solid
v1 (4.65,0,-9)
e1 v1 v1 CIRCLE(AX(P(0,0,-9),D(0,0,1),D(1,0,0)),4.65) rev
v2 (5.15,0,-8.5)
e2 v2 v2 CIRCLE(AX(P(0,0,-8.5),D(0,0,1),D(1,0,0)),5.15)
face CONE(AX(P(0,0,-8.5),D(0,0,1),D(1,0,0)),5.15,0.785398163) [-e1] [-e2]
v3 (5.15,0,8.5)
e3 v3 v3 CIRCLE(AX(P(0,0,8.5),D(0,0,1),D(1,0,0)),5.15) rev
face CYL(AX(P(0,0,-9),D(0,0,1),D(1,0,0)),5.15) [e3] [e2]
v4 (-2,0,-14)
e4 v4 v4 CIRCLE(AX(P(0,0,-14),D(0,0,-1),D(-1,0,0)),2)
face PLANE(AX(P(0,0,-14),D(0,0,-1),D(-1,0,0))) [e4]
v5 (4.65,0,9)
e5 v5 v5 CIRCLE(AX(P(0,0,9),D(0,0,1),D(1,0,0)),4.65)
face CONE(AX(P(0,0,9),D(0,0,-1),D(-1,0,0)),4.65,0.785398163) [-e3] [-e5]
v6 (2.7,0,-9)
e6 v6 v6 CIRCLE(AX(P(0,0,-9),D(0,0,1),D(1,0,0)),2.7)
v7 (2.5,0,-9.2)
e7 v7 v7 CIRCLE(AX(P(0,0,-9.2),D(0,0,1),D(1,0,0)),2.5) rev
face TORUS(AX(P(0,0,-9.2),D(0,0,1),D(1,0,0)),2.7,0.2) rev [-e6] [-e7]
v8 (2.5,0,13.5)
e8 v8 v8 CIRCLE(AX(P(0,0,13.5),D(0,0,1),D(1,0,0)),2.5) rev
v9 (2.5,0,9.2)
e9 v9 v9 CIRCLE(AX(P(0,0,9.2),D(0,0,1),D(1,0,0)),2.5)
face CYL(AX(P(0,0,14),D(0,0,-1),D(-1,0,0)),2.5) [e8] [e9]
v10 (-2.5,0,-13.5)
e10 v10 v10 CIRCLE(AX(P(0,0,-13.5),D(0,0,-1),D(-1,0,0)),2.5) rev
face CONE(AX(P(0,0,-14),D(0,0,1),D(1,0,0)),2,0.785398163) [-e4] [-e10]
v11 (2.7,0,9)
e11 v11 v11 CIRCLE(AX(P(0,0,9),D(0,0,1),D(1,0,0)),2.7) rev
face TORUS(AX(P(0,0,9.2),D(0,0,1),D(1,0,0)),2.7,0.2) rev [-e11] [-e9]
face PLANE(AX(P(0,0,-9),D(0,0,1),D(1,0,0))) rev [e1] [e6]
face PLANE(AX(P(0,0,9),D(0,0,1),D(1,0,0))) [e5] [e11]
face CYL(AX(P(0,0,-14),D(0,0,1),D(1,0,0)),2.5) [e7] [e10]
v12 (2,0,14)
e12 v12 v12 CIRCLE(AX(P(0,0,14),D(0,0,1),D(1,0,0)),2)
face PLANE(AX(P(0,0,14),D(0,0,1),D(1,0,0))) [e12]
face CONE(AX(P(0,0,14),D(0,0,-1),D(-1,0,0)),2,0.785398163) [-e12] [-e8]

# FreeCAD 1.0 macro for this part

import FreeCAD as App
import Part
import Sketcher
from FreeCAD import Vector


def edges_at(feature, points):
    """Names of the edges that pass closest to the given points."""
    edges = feature.Shape.Edges
    near = lambda p: min(range(len(edges)), key=lambda i: edges[i].distToShape(Part.Vertex(*p))[0])
    return sorted({f"Edge{near(p) + 1}" for p in points})

doc = App.newDocument("Part")
body = doc.addObject("PartDesign::Body", "Body")

# Sketch on XY plane
sketch1 = body.newObject("Sketcher::SketchObject", "Sketch")
sketch1.AttachmentSupport = (doc.getObject("XY_Plane"), [""])
sketch1.MapMode = "FlatFace"
sketch1.addGeometry(Part.Circle(Vector(0, 0, 0), Vector(0, 0, 1), 5.15), False)
sketch1.addConstraint([
    Sketcher.Constraint("Coincident", 0, 3, -1, 1),
    Sketcher.Constraint("Diameter", 0, 10.3),
])
pad1 = body.newObject("PartDesign::Pad", "Pad")
pad1.Profile = sketch1
pad1.Type = "TwoLengths"
pad1.Length = 9
pad1.Length2 = 9

# Sketch on XY plane
sketch2 = body.newObject("Sketcher::SketchObject", "Sketch001")
sketch2.AttachmentSupport = (doc.getObject("XY_Plane"), [""])
sketch2.MapMode = "FlatFace"
sketch2.AttachmentOffset = App.Placement(Vector(0, 0, 9), App.Rotation())
sketch2.addGeometry(Part.Circle(Vector(0, 0, 0), Vector(0, 0, 1), 2.5), False)
sketch2.addConstraint([
    Sketcher.Constraint("Coincident", 0, 3, -1, 1),
    Sketcher.Constraint("Diameter", 0, 5.0),
])
pad2 = body.newObject("PartDesign::Pad", "Pad001")
pad2.Profile = sketch2
pad2.Length = 5

# Sketch on XY plane
sketch3 = body.newObject("Sketcher::SketchObject", "Sketch002")
sketch3.AttachmentSupport = (doc.getObject("XY_Plane"), [""])
sketch3.MapMode = "FlatFace"
sketch3.AttachmentOffset = App.Placement(Vector(0, 0, -14), App.Rotation())
sketch3.addGeometry(Part.Circle(Vector(0, 0, 0), Vector(0, 0, 1), 2.5), False)
sketch3.addConstraint([
    Sketcher.Constraint("Coincident", 0, 3, -1, 1),
    Sketcher.Constraint("Diameter", 0, 5.0),
])
pad3 = body.newObject("PartDesign::Pad", "Pad002")
pad3.Profile = sketch3
pad3.Length = 5
doc.recompute()

chamfer = body.newObject("PartDesign::Chamfer", "Chamfer")
chamfer.Base = (pad3, edges_at(pad3, [
    (-2.5, 0, -14),
    (-5.15, 0, 9),
    (-5.15, 0, -9),
    (-2.5, 0, 14),
]))
chamfer.Size = 0.5
doc.recompute()

fillet = body.newObject("PartDesign::Fillet", "Fillet")
fillet.Base = (chamfer, edges_at(chamfer, [(-2.5, 0, -9), (-2.5, 0, 9)]))
fillet.Radius = 0.2

doc.recompute()
